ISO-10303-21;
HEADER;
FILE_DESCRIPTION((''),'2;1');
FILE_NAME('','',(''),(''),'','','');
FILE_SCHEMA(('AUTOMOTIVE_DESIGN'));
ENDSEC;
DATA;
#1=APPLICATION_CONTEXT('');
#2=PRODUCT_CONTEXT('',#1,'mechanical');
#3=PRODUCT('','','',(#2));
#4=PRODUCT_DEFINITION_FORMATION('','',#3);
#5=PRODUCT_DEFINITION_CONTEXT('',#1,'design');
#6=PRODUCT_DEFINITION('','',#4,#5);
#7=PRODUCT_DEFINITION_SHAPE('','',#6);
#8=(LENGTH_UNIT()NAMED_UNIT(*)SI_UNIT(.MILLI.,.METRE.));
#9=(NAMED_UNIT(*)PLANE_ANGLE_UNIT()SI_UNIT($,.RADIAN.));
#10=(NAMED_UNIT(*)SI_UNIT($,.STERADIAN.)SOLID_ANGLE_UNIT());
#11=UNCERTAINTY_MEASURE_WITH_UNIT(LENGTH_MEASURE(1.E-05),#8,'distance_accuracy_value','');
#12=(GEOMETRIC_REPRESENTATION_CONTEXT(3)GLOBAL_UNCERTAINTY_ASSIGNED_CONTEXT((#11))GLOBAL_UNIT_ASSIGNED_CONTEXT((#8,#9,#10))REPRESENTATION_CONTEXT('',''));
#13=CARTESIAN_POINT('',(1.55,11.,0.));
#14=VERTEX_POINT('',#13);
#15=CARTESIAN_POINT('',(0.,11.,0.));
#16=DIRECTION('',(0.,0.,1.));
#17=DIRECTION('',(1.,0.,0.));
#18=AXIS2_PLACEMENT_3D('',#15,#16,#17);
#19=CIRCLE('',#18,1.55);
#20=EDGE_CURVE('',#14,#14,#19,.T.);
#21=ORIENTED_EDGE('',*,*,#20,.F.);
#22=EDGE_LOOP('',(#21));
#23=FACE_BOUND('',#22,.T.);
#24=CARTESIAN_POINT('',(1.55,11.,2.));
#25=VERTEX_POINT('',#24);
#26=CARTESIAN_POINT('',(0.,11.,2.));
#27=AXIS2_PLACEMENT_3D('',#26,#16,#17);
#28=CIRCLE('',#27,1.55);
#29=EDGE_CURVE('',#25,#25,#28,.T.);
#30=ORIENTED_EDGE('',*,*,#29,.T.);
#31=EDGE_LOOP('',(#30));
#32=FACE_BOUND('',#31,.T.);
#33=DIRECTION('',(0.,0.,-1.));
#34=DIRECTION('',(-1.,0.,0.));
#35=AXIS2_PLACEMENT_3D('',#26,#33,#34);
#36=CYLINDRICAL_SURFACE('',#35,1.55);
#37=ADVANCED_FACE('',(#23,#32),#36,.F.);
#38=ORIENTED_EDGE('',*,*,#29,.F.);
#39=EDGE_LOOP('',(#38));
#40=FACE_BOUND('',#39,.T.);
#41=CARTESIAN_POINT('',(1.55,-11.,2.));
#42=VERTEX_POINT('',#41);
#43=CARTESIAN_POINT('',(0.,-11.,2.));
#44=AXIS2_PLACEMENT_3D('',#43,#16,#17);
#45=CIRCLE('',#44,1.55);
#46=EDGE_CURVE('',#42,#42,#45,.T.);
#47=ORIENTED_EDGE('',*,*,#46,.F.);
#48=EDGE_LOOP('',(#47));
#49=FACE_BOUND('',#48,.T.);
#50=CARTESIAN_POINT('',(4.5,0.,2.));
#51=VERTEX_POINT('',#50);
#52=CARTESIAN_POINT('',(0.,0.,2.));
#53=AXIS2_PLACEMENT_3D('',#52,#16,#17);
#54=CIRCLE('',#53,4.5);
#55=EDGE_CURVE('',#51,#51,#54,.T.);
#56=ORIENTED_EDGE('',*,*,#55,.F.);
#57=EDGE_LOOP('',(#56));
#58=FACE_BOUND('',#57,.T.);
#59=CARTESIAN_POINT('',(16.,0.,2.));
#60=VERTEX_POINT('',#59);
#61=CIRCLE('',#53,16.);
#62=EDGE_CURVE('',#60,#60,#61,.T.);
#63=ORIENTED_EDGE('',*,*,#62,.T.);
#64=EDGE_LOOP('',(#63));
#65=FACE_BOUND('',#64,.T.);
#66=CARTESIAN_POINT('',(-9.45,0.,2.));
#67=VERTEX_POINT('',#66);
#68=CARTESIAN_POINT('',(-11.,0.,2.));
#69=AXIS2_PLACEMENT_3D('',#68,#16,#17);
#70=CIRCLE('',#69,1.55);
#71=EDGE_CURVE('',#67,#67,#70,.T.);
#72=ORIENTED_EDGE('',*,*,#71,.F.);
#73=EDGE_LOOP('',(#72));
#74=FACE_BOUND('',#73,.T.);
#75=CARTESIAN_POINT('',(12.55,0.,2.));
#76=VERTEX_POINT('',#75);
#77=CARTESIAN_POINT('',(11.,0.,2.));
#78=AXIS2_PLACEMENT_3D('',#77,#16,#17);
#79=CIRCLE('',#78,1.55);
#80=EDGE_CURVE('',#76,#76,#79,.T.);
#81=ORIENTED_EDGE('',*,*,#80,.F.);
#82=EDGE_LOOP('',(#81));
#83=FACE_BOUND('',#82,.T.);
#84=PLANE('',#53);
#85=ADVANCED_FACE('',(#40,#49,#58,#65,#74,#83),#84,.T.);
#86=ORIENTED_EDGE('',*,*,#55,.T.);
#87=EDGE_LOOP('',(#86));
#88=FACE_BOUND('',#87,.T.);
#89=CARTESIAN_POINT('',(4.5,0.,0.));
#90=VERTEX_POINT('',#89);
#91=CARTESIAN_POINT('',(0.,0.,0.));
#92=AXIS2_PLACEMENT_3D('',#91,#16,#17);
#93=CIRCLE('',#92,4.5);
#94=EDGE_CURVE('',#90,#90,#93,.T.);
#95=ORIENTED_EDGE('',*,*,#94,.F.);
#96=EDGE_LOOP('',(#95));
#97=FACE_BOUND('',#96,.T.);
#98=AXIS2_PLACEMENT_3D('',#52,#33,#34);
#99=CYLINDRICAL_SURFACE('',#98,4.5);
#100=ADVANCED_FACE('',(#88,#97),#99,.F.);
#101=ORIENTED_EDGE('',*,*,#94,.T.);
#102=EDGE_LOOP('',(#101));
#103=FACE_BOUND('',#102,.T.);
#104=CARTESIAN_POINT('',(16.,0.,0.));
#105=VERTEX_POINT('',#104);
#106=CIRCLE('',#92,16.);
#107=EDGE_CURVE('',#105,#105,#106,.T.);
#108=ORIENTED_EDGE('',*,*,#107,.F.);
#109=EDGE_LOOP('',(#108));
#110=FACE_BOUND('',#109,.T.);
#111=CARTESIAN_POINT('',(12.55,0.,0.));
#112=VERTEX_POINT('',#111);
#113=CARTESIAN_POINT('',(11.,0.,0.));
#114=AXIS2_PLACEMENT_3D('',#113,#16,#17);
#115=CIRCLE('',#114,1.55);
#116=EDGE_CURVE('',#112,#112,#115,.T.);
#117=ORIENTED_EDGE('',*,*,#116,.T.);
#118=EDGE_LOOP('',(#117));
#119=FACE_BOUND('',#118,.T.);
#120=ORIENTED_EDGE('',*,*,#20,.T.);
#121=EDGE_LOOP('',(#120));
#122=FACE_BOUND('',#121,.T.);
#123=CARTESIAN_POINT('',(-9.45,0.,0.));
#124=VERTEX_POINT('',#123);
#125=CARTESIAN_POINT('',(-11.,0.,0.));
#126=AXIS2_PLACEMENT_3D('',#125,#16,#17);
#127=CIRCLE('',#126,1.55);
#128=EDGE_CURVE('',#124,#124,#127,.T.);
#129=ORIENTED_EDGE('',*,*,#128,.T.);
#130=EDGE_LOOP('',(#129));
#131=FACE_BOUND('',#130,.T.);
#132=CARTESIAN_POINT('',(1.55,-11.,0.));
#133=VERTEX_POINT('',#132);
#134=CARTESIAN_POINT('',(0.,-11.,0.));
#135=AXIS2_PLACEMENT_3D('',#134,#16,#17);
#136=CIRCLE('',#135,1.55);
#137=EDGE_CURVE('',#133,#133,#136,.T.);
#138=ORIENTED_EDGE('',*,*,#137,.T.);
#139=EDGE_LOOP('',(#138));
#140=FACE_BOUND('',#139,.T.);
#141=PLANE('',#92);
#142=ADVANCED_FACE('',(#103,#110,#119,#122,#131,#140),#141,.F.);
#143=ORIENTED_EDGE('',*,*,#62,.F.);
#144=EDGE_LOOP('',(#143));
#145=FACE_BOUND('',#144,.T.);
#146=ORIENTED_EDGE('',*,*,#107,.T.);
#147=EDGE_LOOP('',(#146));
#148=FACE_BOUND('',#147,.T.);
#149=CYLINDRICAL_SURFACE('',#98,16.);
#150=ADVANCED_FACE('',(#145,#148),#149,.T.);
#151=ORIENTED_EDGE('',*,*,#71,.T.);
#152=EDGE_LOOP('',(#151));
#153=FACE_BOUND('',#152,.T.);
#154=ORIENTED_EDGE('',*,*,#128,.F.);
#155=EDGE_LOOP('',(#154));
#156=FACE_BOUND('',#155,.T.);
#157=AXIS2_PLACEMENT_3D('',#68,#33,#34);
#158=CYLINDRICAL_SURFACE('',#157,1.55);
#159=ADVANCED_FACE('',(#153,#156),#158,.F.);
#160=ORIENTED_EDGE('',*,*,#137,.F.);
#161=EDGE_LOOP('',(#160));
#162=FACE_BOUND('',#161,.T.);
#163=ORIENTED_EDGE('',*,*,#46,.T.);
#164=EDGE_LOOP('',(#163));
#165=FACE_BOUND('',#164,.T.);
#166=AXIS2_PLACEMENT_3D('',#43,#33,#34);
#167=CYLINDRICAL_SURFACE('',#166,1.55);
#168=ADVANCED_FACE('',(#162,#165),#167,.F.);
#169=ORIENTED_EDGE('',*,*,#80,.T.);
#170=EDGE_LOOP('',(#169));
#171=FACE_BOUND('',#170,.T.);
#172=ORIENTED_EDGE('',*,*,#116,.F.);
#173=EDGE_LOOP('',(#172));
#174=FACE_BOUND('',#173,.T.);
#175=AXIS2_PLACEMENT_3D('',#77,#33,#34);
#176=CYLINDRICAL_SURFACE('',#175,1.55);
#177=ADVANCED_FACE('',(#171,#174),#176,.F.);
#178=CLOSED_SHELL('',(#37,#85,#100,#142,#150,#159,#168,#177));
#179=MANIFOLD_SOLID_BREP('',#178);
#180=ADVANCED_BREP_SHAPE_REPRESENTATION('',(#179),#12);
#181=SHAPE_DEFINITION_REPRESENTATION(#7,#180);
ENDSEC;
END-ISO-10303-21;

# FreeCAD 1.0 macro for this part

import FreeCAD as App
import Part
import Sketcher
from FreeCAD import Vector
Q = App.Units.Quantity

doc = App.newDocument("Part")
body = doc.addObject("PartDesign::Body", "Body")

sketch1 = doc.addObject("Sketcher::SketchObject", "Sketch")
body.addObject(sketch1)
sketch1.AttachmentSupport = (doc.XY_Plane, [""])
sketch1.MapMode = "FlatFace"
sketch1.addGeometry([
    Part.Circle(Vector(0, 0, 0), Vector(0, 0, 1), 16),
    Part.Circle(Vector(0, -11, 0), Vector(0, 0, 1), 1.55),
    Part.Circle(Vector(-11, 0, 0), Vector(0, 0, 1), 1.55),
    Part.Circle(Vector(0, 0, 0), Vector(0, 0, 1), 4.5),
    Part.Circle(Vector(11, 0, 0), Vector(0, 0, 1), 1.55),
    Part.Circle(Vector(0, 11, 0), Vector(0, 0, 1), 1.55),
], False)
sketch1.addConstraint([
    Sketcher.Constraint("Coincident", 0, 3, -1, 1),
    Sketcher.Constraint("Coincident", 3, 3, -1, 1),
    Sketcher.Constraint("Equal", 1, 2),
    Sketcher.Constraint("Equal", 2, 4),
    Sketcher.Constraint("Equal", 4, 5),
    Sketcher.Constraint("Symmetric", 2, 3, 4, 3, -1, 1),
    Sketcher.Constraint("Symmetric", 1, 3, 5, 3, -1, 1),
    Sketcher.Constraint("PointOnObject", 1, 3, -2),
    Sketcher.Constraint("PointOnObject", 2, 3, -1),
    Sketcher.Constraint("Diameter", 0, Q("32 mm")),
    Sketcher.Constraint("Diameter", 3, Q("9 mm")),
    Sketcher.Constraint("Diameter", 1, Q("3.1 mm")),
    Sketcher.Constraint("DistanceY", 1, 3, -1, 1, Q("11 mm")),
    Sketcher.Constraint("DistanceX", 2, 3, -1, 1, Q("11 mm")),
])
pad1 = doc.addObject("PartDesign::Pad", "Pad")
body.addObject(pad1)
pad1.Profile = sketch1
pad1.Length = 2

doc.recompute()
